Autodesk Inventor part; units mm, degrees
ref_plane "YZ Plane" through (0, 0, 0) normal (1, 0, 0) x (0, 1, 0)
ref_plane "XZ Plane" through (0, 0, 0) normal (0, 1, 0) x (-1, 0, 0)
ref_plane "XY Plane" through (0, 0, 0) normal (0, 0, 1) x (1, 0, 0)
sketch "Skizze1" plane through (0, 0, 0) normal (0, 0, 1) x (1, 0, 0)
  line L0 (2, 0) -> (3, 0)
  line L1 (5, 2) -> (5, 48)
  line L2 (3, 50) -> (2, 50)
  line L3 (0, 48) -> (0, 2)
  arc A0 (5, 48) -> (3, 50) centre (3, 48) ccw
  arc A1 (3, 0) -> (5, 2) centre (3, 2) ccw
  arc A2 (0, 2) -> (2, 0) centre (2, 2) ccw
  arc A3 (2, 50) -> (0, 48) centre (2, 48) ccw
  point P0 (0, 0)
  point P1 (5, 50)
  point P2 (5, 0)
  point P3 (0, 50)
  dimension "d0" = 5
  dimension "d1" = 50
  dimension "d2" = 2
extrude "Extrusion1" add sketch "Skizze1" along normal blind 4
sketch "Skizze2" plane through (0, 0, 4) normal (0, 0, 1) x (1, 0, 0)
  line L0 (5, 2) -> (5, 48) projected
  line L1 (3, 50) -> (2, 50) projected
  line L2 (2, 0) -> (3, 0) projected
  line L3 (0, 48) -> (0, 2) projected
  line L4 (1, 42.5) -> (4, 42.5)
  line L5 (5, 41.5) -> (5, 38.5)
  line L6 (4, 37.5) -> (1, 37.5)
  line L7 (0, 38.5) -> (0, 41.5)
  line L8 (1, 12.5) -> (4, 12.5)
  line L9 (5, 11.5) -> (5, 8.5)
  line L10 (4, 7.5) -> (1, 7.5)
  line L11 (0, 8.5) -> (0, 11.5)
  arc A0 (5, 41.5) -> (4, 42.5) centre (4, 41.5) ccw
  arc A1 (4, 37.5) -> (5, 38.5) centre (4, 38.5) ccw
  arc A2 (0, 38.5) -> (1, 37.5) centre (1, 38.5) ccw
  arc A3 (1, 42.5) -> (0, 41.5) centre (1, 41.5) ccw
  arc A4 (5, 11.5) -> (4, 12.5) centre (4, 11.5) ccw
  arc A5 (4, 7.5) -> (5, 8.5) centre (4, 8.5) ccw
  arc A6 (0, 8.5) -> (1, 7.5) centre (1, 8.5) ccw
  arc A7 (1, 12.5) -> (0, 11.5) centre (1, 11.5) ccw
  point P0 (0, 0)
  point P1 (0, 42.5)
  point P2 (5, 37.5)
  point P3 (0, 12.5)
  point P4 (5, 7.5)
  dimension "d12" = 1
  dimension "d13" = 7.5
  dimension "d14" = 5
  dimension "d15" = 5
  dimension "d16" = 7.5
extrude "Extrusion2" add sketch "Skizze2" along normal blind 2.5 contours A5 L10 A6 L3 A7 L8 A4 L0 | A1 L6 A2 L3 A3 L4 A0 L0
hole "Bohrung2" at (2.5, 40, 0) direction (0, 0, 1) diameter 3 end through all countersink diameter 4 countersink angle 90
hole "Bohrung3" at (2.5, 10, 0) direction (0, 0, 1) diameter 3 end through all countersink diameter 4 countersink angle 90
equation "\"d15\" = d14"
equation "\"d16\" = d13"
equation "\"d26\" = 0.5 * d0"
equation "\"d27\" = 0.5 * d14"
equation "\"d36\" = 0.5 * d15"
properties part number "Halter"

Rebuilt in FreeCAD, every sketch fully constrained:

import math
import FreeCAD as App
import Part
import Sketcher

doc = App.newDocument("Part")
body = doc.addObject("PartDesign::Body", "Body")

sketch1 = body.newObject("Sketcher::SketchObject", "Sketch")
sketch1.AttachmentSupport = (doc.getObject("XY_Plane"), [""])
sketch1.MapMode = "FlatFace"
sketch1.addGeometry([
    Part.ArcOfCircle(Part.Circle(App.Vector(2, 2, 0), App.Vector(0, 0, 1), 2), math.radians(180), math.radians(270)),
    Part.LineSegment(App.Vector(2, 0, 0), App.Vector(3, 0, 0)),
    Part.ArcOfCircle(Part.Circle(App.Vector(3, 2, 0), App.Vector(0, 0, 1), 2), math.radians(-90), math.radians(0)),
    Part.LineSegment(App.Vector(5, 2, 0), App.Vector(5, 48, 0)),
    Part.ArcOfCircle(Part.Circle(App.Vector(3, 48, 0), App.Vector(0, 0, 1), 2), math.radians(0), math.radians(90)),
    Part.LineSegment(App.Vector(3, 50, 0), App.Vector(2, 50, 0)),
    Part.ArcOfCircle(Part.Circle(App.Vector(2, 48, 0), App.Vector(0, 0, 1), 2), math.radians(90), math.radians(180)),
    Part.LineSegment(App.Vector(0, 48, 0), App.Vector(0, 2, 0)),
], False)
sketch1.addConstraint([
    Sketcher.Constraint("Tangent", 0, 2, 1, 1),
    Sketcher.Constraint("Tangent", 1, 2, 2, 1),
    Sketcher.Constraint("Tangent", 2, 2, 3, 1),
    Sketcher.Constraint("Tangent", 3, 2, 4, 1),
    Sketcher.Constraint("Tangent", 4, 2, 5, 1),
    Sketcher.Constraint("Tangent", 5, 2, 6, 1),
    Sketcher.Constraint("Tangent", 6, 2, 7, 1),
    Sketcher.Constraint("Tangent", 7, 2, 0, 1),
    Sketcher.Constraint("Horizontal", 1),
    Sketcher.Constraint("Vertical", 3),
    Sketcher.Constraint("Horizontal", 5),
    Sketcher.Constraint("Vertical", 7),
    Sketcher.Constraint("Equal", 0, 2),
    Sketcher.Constraint("Equal", 2, 4),
    Sketcher.Constraint("Equal", 4, 6),
    Sketcher.Constraint("PointOnObject", 0, 2, -1),
    Sketcher.Constraint("PointOnObject", 6, 2, -2),
    Sketcher.Constraint("Radius", 0, 2.0),
    Sketcher.Constraint("DistanceX", -1, 1, 2, 2, 5.0),
    Sketcher.Constraint("DistanceY", -1, 1, 4, 2, 50.0),
])
pad1 = body.newObject("PartDesign::Pad", "Pad")
pad1.Profile = sketch1
pad1.Length = 4

sketch2 = body.newObject("Sketcher::SketchObject", "Sketch001")
sketch2.AttachmentSupport = (doc.getObject("XY_Plane"), [""])
sketch2.MapMode = "FlatFace"
sketch2.AttachmentOffset = App.Placement(App.Vector(0, 0, 4), App.Rotation())
sketch2.addGeometry([
    Part.ArcOfCircle(Part.Circle(App.Vector(4, 8.5, 0), App.Vector(0, 0, 1), 1), math.radians(-90), math.radians(0)),
    Part.LineSegment(App.Vector(5, 8.5, 0), App.Vector(5, 11.5, 0)),
    Part.ArcOfCircle(Part.Circle(App.Vector(4, 11.5, 0), App.Vector(0, 0, 1), 1), math.radians(0), math.radians(90)),
    Part.LineSegment(App.Vector(4, 12.5, 0), App.Vector(1, 12.5, 0)),
    Part.ArcOfCircle(Part.Circle(App.Vector(1, 11.5, 0), App.Vector(0, 0, 1), 1), math.radians(90), math.radians(180)),
    Part.LineSegment(App.Vector(0, 11.5, 0), App.Vector(0, 8.5, 0)),
    Part.ArcOfCircle(Part.Circle(App.Vector(1, 8.5, 0), App.Vector(0, 0, 1), 1), math.radians(180), math.radians(270)),
    Part.LineSegment(App.Vector(1, 7.5, 0), App.Vector(4, 7.5, 0)),
    Part.ArcOfCircle(Part.Circle(App.Vector(4, 38.5, 0), App.Vector(0, 0, 1), 1), math.radians(-90), math.radians(0)),
    Part.LineSegment(App.Vector(5, 38.5, 0), App.Vector(5, 41.5, 0)),
    Part.ArcOfCircle(Part.Circle(App.Vector(4, 41.5, 0), App.Vector(0, 0, 1), 1), math.radians(0), math.radians(90)),
    Part.LineSegment(App.Vector(4, 42.5, 0), App.Vector(1, 42.5, 0)),
    Part.ArcOfCircle(Part.Circle(App.Vector(1, 41.5, 0), App.Vector(0, 0, 1), 1), math.radians(90), math.radians(180)),
    Part.LineSegment(App.Vector(0, 41.5, 0), App.Vector(0, 38.5, 0)),
    Part.ArcOfCircle(Part.Circle(App.Vector(1, 38.5, 0), App.Vector(0, 0, 1), 1), math.radians(180), math.radians(270)),
    Part.LineSegment(App.Vector(1, 37.5, 0), App.Vector(4, 37.5, 0)),
], False)
sketch2.addConstraint([
    Sketcher.Constraint("Tangent", 0, 2, 1, 1),
    Sketcher.Constraint("Tangent", 1, 2, 2, 1),
    Sketcher.Constraint("Tangent", 2, 2, 3, 1),
    Sketcher.Constraint("Tangent", 3, 2, 4, 1),
    Sketcher.Constraint("Tangent", 4, 2, 5, 1),
    Sketcher.Constraint("Tangent", 5, 2, 6, 1),
    Sketcher.Constraint("Tangent", 6, 2, 7, 1),
    Sketcher.Constraint("Tangent", 7, 2, 0, 1),
    Sketcher.Constraint("Tangent", 8, 2, 9, 1),
    Sketcher.Constraint("Tangent", 9, 2, 10, 1),
    Sketcher.Constraint("Tangent", 10, 2, 11, 1),
    Sketcher.Constraint("Tangent", 11, 2, 12, 1),
    Sketcher.Constraint("Tangent", 12, 2, 13, 1),
    Sketcher.Constraint("Tangent", 13, 2, 14, 1),
    Sketcher.Constraint("Tangent", 14, 2, 15, 1),
    Sketcher.Constraint("Tangent", 15, 2, 8, 1),
    Sketcher.Constraint("Vertical", 1),
    Sketcher.Constraint("Horizontal", 3),
    Sketcher.Constraint("Vertical", 5),
    Sketcher.Constraint("Horizontal", 7),
    Sketcher.Constraint("Vertical", 9),
    Sketcher.Constraint("Horizontal", 11),
    Sketcher.Constraint("Vertical", 13),
    Sketcher.Constraint("Horizontal", 15),
    Sketcher.Constraint("Equal", 0, 2),
    Sketcher.Constraint("Equal", 2, 4),
    Sketcher.Constraint("Equal", 4, 6),
    Sketcher.Constraint("Equal", 6, 8),
    Sketcher.Constraint("Equal", 8, 10),
    Sketcher.Constraint("Equal", 10, 12),
    Sketcher.Constraint("Equal", 12, 14),
    Sketcher.Constraint("PointOnObject", 4, 2, -2),
    Sketcher.Constraint("PointOnObject", 12, 2, -2),
    Sketcher.Constraint("Vertical", 2, 3, 8, 3),
    Sketcher.Constraint("Equal", 15, 1),
    Sketcher.Constraint("Equal", 5, 9),
    Sketcher.Constraint("Radius", 0, 1.0),
    Sketcher.Constraint("DistanceX", -1, 1, 0, 2, 5.0),
    Sketcher.Constraint("DistanceY", -1, 1, 6, 2, 7.5),
    Sketcher.Constraint("DistanceY", 2, 3, 8, 3, 27.0),
])
pad2 = body.newObject("PartDesign::Pad", "Pad001")
pad2.Profile = sketch2
pad2.Length = 2.5

sketch3 = body.newObject("Sketcher::SketchObject", "Sketch002")
sketch3.AttachmentSupport = (doc.getObject("XY_Plane"), [""])
sketch3.MapMode = "FlatFace"
sketch3.addGeometry(Part.Circle(App.Vector(2.5, 40, 0), App.Vector(0, 0, 1), 1.5), False)
sketch3.addConstraint([
    Sketcher.Constraint("Diameter", 0, 3.0),
    Sketcher.Constraint("DistanceY", -1, 1, 0, 3, 40.0),
    Sketcher.Constraint("DistanceX", -1, 1, 0, 3, 2.5),
])
doc.recompute()
hole = body.newObject("PartDesign::Hole", "Hole")
hole.Profile = sketch3
hole.ThreadType = "None"
hole.Diameter = 3
hole.DepthType = "ThroughAll"
hole.HoleCutType = "Countersink"
hole.HoleCutDiameter = 4
hole.HoleCutCountersinkAngle = 90
hole.Reversed = True

sketch4 = body.newObject("Sketcher::SketchObject", "Sketch003")
sketch4.AttachmentSupport = (doc.getObject("XY_Plane"), [""])
sketch4.MapMode = "FlatFace"
sketch4.addGeometry(Part.Circle(App.Vector(2.5, 10, 0), App.Vector(0, 0, 1), 1.5), False)
sketch4.addConstraint([
    Sketcher.Constraint("Diameter", 0, 3.0),
    Sketcher.Constraint("DistanceY", -1, 1, 0, 3, 10.0),
    Sketcher.Constraint("DistanceX", -1, 1, 0, 3, 2.5),
])
doc.recompute()
hole2 = body.newObject("PartDesign::Hole", "Hole001")
hole2.Profile = sketch4
hole2.ThreadType = "None"
hole2.Diameter = 3
hole2.DepthType = "ThroughAll"
hole2.HoleCutType = "Countersink"
hole2.HoleCutDiameter = 4
hole2.HoleCutCountersinkAngle = 90
hole2.Reversed = True

doc.recompute()
